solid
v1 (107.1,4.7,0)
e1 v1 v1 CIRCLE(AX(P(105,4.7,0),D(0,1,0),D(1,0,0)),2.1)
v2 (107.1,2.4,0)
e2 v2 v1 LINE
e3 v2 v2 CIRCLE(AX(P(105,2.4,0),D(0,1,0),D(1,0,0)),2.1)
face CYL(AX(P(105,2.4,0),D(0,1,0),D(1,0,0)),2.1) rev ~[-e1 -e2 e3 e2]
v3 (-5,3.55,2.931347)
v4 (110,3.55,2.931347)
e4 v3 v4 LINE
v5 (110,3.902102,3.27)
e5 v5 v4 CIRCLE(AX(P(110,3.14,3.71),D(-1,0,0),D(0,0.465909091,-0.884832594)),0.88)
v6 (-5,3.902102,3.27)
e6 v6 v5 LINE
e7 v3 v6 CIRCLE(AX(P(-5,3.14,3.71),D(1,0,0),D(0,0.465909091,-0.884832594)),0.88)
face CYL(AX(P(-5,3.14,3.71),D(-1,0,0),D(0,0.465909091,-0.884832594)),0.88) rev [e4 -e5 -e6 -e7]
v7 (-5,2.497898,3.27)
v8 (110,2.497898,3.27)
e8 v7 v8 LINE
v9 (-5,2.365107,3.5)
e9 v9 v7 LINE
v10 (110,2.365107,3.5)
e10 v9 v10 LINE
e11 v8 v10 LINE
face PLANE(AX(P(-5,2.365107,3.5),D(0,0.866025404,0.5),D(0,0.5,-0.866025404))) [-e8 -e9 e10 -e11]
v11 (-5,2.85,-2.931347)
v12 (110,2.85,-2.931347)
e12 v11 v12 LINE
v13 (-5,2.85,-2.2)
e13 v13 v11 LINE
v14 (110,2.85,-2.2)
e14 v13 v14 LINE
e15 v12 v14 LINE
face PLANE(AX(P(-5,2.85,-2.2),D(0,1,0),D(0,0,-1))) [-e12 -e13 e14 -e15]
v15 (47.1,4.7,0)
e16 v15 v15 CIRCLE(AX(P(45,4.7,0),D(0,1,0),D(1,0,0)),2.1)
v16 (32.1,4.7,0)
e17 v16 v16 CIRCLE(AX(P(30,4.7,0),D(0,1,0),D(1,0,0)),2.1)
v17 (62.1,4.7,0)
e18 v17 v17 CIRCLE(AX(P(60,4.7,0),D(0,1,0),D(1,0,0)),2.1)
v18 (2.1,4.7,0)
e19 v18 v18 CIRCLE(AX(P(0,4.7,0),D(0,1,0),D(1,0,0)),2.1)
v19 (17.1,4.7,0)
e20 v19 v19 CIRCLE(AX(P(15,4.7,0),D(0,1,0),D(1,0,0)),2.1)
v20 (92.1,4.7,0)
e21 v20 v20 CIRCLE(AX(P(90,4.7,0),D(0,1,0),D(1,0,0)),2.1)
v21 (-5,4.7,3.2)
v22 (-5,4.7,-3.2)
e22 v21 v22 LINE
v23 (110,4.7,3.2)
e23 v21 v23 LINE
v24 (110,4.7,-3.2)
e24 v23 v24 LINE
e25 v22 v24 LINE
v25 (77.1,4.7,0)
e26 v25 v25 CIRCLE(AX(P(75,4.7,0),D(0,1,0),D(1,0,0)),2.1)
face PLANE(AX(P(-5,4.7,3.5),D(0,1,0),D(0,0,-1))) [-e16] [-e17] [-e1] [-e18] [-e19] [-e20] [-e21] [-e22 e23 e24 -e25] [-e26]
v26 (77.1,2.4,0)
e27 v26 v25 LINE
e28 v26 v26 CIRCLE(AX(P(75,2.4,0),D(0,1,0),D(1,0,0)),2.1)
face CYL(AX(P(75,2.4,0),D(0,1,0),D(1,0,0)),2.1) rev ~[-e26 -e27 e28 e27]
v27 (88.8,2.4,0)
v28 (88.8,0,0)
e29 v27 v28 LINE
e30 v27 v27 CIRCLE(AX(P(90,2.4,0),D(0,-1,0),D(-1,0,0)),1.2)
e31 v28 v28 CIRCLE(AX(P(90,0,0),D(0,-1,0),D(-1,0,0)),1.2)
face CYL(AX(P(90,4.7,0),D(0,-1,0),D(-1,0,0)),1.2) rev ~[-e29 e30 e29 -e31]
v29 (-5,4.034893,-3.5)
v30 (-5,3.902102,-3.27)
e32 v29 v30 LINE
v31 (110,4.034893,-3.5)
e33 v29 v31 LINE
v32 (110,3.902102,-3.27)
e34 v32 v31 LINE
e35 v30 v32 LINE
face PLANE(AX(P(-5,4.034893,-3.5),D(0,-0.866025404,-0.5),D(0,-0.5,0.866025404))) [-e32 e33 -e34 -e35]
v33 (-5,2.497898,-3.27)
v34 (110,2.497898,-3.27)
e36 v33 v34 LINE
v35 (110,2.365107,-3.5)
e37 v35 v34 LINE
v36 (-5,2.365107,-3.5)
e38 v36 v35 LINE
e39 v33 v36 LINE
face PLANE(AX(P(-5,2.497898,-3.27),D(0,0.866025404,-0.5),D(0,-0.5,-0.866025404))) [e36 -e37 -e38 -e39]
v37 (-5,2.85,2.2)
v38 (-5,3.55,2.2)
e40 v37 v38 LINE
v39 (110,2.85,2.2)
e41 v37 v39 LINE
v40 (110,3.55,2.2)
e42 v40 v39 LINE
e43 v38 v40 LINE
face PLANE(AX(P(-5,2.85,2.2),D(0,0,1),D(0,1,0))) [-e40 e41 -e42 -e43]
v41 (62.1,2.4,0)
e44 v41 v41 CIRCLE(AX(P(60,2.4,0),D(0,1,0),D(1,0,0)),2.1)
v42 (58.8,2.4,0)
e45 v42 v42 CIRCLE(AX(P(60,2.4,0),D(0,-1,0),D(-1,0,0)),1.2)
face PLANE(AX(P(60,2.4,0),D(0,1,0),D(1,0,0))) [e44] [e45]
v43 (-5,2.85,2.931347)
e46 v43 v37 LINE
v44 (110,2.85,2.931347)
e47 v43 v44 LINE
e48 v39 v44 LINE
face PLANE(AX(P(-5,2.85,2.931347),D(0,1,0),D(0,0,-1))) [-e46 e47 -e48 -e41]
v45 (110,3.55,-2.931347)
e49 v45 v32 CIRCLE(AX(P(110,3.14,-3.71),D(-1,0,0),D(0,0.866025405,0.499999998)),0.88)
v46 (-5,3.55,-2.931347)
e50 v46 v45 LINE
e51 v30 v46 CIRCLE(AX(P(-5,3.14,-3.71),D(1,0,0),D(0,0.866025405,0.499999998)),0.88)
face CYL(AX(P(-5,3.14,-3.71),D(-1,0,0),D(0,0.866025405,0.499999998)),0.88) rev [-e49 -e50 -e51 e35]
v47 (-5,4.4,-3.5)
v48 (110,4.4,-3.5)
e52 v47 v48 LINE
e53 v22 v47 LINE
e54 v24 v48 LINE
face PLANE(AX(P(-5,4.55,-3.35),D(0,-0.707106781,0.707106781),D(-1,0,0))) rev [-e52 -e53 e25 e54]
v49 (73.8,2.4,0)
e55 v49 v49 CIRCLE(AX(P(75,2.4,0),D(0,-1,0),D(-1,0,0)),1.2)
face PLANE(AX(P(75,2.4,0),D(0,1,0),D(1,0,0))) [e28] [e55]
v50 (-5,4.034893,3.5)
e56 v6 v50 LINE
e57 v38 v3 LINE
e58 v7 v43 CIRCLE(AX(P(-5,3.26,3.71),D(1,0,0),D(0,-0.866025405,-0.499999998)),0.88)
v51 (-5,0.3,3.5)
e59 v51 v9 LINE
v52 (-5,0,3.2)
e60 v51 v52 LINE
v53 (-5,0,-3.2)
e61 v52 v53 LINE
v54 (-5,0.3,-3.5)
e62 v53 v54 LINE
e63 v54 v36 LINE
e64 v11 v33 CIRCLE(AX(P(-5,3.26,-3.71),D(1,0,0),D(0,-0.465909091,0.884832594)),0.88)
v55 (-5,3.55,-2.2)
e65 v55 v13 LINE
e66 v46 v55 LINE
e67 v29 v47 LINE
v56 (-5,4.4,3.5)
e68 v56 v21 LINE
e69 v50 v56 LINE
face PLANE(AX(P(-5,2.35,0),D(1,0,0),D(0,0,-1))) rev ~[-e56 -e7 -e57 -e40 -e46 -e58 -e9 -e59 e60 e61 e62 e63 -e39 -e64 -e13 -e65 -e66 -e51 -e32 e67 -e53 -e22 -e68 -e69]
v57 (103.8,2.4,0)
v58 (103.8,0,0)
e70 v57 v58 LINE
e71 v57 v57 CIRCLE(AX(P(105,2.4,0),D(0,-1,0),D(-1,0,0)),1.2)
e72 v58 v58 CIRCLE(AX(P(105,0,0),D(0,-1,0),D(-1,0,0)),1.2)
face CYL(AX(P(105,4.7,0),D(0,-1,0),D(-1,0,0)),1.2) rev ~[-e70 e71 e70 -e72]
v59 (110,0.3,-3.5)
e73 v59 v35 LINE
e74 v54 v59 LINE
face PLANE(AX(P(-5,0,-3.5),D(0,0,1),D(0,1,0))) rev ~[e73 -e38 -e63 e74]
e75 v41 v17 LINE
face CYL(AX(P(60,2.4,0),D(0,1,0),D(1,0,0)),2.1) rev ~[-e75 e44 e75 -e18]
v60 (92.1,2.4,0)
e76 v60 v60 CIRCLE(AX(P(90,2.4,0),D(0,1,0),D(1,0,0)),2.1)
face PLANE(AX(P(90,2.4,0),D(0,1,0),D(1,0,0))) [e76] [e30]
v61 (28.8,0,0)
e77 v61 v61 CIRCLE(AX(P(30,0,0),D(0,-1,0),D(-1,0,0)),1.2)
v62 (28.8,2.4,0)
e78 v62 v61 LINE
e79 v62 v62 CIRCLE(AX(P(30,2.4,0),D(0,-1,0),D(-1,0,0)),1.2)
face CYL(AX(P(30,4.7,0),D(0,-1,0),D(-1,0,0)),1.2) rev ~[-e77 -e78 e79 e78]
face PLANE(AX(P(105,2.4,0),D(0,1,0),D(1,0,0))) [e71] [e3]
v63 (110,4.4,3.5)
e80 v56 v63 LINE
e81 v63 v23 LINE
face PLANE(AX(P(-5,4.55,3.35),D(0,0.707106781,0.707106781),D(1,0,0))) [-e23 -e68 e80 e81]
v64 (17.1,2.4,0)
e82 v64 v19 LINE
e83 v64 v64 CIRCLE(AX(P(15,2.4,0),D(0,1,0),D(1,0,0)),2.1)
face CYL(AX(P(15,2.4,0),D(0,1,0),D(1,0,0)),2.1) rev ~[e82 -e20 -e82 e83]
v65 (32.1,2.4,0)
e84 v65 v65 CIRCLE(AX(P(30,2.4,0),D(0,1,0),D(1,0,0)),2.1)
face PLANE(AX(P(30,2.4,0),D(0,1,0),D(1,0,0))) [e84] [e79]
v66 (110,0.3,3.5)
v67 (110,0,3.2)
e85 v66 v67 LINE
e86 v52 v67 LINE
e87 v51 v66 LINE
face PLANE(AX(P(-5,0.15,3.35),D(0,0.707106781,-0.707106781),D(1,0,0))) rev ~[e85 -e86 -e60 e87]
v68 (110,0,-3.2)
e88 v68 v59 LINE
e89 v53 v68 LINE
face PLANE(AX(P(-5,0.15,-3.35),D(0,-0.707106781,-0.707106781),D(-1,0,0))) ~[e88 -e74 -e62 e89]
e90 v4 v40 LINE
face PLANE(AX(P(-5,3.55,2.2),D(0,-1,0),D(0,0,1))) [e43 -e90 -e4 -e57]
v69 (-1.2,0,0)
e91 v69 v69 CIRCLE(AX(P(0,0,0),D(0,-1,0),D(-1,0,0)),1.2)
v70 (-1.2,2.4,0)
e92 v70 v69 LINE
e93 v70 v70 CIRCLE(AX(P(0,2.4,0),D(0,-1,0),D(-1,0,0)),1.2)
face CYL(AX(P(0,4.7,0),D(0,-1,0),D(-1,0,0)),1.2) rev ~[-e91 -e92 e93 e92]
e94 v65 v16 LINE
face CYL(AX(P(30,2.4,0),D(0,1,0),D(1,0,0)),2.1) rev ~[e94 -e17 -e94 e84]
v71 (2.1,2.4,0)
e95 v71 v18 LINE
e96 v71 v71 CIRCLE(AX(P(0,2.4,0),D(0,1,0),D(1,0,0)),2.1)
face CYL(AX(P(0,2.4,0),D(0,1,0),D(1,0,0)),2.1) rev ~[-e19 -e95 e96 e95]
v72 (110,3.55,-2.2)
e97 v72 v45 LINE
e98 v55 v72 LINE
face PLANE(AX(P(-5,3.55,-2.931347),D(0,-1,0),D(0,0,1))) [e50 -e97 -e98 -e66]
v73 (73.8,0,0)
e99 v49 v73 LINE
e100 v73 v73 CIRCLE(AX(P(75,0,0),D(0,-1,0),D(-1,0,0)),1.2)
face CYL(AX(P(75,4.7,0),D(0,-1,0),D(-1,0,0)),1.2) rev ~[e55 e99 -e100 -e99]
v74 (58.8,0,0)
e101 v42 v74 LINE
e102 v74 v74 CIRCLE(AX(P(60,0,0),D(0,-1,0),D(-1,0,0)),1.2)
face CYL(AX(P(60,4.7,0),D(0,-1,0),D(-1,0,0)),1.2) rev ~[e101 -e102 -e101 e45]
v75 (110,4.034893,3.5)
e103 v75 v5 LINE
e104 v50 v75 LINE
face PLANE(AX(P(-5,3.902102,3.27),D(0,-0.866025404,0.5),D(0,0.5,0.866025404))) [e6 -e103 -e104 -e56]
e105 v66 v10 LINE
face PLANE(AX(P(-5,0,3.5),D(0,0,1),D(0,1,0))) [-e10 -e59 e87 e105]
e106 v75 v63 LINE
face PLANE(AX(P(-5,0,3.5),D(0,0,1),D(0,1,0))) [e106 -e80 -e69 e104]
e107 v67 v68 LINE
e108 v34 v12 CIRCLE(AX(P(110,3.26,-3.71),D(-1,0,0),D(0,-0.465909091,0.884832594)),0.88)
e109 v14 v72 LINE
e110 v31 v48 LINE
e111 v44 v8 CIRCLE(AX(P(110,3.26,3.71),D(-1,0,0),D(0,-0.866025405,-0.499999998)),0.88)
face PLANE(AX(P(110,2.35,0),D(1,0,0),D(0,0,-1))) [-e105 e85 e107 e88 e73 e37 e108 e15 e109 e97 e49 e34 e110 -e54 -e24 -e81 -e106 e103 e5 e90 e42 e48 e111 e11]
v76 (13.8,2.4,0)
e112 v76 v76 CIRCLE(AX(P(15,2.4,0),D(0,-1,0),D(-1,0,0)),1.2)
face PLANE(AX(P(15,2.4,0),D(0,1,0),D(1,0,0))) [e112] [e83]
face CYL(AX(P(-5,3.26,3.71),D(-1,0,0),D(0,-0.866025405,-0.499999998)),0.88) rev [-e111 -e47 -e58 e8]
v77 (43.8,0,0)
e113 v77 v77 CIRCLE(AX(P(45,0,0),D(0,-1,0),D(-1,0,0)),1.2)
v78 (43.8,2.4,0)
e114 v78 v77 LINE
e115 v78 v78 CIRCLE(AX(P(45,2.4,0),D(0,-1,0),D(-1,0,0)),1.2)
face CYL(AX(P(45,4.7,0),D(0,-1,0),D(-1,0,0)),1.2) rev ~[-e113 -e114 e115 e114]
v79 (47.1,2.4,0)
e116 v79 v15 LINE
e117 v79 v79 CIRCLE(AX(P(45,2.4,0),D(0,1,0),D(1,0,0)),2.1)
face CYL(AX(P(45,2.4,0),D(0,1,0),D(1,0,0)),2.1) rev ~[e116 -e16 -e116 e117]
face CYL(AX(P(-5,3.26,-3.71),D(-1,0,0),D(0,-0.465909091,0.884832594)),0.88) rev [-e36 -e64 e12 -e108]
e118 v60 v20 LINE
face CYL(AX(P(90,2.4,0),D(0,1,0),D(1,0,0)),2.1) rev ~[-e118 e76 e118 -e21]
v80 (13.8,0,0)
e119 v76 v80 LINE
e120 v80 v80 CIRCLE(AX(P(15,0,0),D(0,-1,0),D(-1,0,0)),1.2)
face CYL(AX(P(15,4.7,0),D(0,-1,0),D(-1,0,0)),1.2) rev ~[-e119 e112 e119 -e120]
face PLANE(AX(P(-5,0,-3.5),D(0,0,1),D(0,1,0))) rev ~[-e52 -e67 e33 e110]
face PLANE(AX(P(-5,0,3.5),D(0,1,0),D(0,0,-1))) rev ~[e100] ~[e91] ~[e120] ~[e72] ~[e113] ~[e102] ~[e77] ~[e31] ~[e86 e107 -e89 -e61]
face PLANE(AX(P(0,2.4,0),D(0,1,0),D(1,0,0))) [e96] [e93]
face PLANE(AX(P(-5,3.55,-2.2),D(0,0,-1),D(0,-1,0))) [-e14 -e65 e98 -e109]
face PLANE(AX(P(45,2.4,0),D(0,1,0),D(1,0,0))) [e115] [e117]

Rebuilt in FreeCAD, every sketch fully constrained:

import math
import FreeCAD as App
import Part
import Sketcher
from FreeCAD import Vector
Q = App.Units.Quantity


def edges_at(feature, points):
    """Names of the edges that pass closest to the given points."""
    edges = feature.Shape.Edges
    near = lambda p: min(range(len(edges)), key=lambda i: edges[i].distToShape(Part.Vertex(*p))[0])
    return sorted({f"Edge{near(p) + 1}" for p in points})

doc = App.newDocument("Part")
body = doc.addObject("PartDesign::Body", "Body")

sketch1 = body.newObject("Sketcher::SketchObject", "Sketch")
sketch1.AttachmentSupport = (doc.getObject("YZ_Plane"), [""])
sketch1.MapMode = "FlatFace"
sketch1.AttachmentOffset = App.Placement(Vector(0, 0, -5), App.Rotation())
sketch1.addGeometry([
    Part.LineSegment(Vector(4.7, 3.5, 0), Vector(0, 3.5, 0)),
    Part.LineSegment(Vector(0, 3.5, 0), Vector(0, -3.5, 0)),
    Part.LineSegment(Vector(0, -3.5, 0), Vector(4.7, -3.5, 0)),
    Part.LineSegment(Vector(4.7, -3.5, 0), Vector(4.7, 3.5, 0)),
], False)
sketch1.addConstraint([
    Sketcher.Constraint("Coincident", 0, 2, 1, 1),
    Sketcher.Constraint("Coincident", 1, 2, 2, 1),
    Sketcher.Constraint("Coincident", 2, 2, 3, 1),
    Sketcher.Constraint("Coincident", 3, 2, 0, 1),
    Sketcher.Constraint("Horizontal", 0),
    Sketcher.Constraint("Vertical", 1),
    Sketcher.Constraint("Horizontal", 2),
    Sketcher.Constraint("Vertical", 3),
    Sketcher.Constraint("Symmetric", 0, 2, 1, 2, -1, 1),
    Sketcher.Constraint("DistanceY", 1, 2, 1, 1, Q("7 mm")),
    Sketcher.Constraint("DistanceX", 0, 2, 0, 1, Q("4.7 mm")),
])
pad1 = body.newObject("PartDesign::Pad", "Pad")
pad1.Profile = sketch1
pad1.Length = 115

sketch2 = body.newObject("Sketcher::SketchObject", "Sketch001")
sketch2.AttachmentSupport = (doc.getObject("YZ_Plane"), [""])
sketch2.MapMode = "FlatFace"
sketch2.AttachmentOffset = App.Placement(Vector(0, 0, -5), App.Rotation())
sketch2.addGeometry([
    Part.LineSegment(Vector(4.034893, -3.5, 0), Vector(3.902102, -3.27, 0)),
    Part.ArcOfCircle(Part.Circle(Vector(3.14, -3.71, 0), Vector(0, 0, 1), 0.88), math.radians(30), math.radians(62.230927)),
    Part.LineSegment(Vector(3.55, -2.931347, 0), Vector(3.55, -2.2, 0)),
    Part.LineSegment(Vector(3.55, -2.2, 0), Vector(2.85, -2.2, 0)),
    Part.LineSegment(Vector(2.85, -2.2, 0), Vector(2.85, -2.931347, 0)),
    Part.ArcOfCircle(Part.Circle(Vector(3.26, -3.71, 0), Vector(0, 0, 1), 0.88), math.radians(117.769073), math.radians(150)),
    Part.LineSegment(Vector(2.497898, -3.27, 0), Vector(2.365107, -3.5, 0)),
    Part.LineSegment(Vector(2.365107, -3.5, 0), Vector(4.034893, -3.5, 0)),
    Part.LineSegment(Vector(4.034893, 3.5, 0), Vector(2.365107, 3.5, 0)),
    Part.LineSegment(Vector(2.365107, 3.5, 0), Vector(2.497898, 3.27, 0)),
    Part.ArcOfCircle(Part.Circle(Vector(3.26, 3.71, 0), Vector(0, 0, 1), 0.88), math.radians(-150), math.radians(-117.769073)),
    Part.LineSegment(Vector(2.85, 2.931347, 0), Vector(2.85, 2.2, 0)),
    Part.LineSegment(Vector(2.85, 2.2, 0), Vector(3.55, 2.2, 0)),
    Part.LineSegment(Vector(3.55, 2.2, 0), Vector(3.55, 2.931347, 0)),
    Part.ArcOfCircle(Part.Circle(Vector(3.14, 3.71, 0), Vector(0, 0, 1), 0.88), math.radians(-62.230927), math.radians(-30)),
    Part.LineSegment(Vector(3.902102, 3.27, 0), Vector(4.034893, 3.5, 0)),
], False)
sketch2.addConstraint([
    Sketcher.Constraint("Tangent", 0, 2, 1, 1),
    Sketcher.Constraint("Coincident", 1, 2, 2, 1),
    Sketcher.Constraint("Coincident", 2, 2, 3, 1),
    Sketcher.Constraint("Coincident", 3, 2, 4, 1),
    Sketcher.Constraint("Coincident", 4, 2, 5, 1),
    Sketcher.Constraint("Tangent", 5, 2, 6, 1),
    Sketcher.Constraint("Coincident", 6, 2, 7, 1),
    Sketcher.Constraint("Coincident", 7, 2, 0, 1),
    Sketcher.Constraint("Coincident", 8, 2, 9, 1),
    Sketcher.Constraint("Tangent", 9, 2, 10, 1),
    Sketcher.Constraint("Coincident", 10, 2, 11, 1),
    Sketcher.Constraint("Coincident", 11, 2, 12, 1),
    Sketcher.Constraint("Coincident", 12, 2, 13, 1),
    Sketcher.Constraint("Coincident", 13, 2, 14, 1),
    Sketcher.Constraint("Tangent", 14, 2, 15, 1),
    Sketcher.Constraint("Coincident", 15, 2, 8, 1),
    Sketcher.Constraint("Vertical", 2),
    Sketcher.Constraint("Horizontal", 3),
    Sketcher.Constraint("Vertical", 4),
    Sketcher.Constraint("Horizontal", 7),
    Sketcher.Constraint("Horizontal", 8),
    Sketcher.Constraint("Vertical", 11),
    Sketcher.Constraint("Horizontal", 12),
    Sketcher.Constraint("Vertical", 13),
    Sketcher.Constraint("Equal", 1, 5),
    Sketcher.Constraint("Equal", 5, 10),
    Sketcher.Constraint("Equal", 10, 14),
    Sketcher.Constraint("Symmetric", 5, 3, 10, 3, -1),
    Sketcher.Constraint("Symmetric", 1, 3, 14, 3, -1),
    Sketcher.Constraint("Symmetric", 6, 2, 8, 2, -1),
    Sketcher.Constraint("Symmetric", 3, 2, 11, 2, -1),
    Sketcher.Constraint("Parallel", 0, 9),
    Sketcher.Constraint("Parallel", 6, 15),
    Sketcher.Constraint("Horizontal", 1, 3, 5, 3),
    Sketcher.Constraint("Horizontal", 1, 2, 4, 2),
    Sketcher.Constraint("Horizontal", 10, 2, 13, 2),
    Sketcher.Constraint("Angle", 0, Q("120 deg")),
    Sketcher.Constraint("Radius", 1, Q("0.88 mm")),
    Sketcher.Constraint("DistanceX", 3, 2, 3, 1, Q("0.7 mm")),
    Sketcher.Constraint("DistanceY", 2, 2, -1, 1, Q("2.2 mm")),
    Sketcher.Constraint("DistanceY", 6, 2, -1, 1, Q("3.5 mm")),
    Sketcher.Constraint("DistanceX", -1, 1, 1, 3, Q("3.14 mm")),
    Sketcher.Constraint("DistanceY", 1, 3, -1, 1, Q("3.71 mm")),
    Sketcher.Constraint("DistanceX", -1, 1, 5, 3, Q("3.26 mm")),
])
pocket1 = body.newObject("PartDesign::Pocket", "Pocket")
pocket1.Profile = sketch2
pocket1.Type = "ThroughAll"
pocket1.Reversed = True

sketch3 = body.newObject("Sketcher::SketchObject", "Sketch002")
sketch3.AttachmentSupport = (doc.getObject("XZ_Plane"), [""])
sketch3.MapMode = "FlatFace"
sketch3.AttachmentOffset = App.Placement(Vector(0, 0, -4.7), App.Rotation())
sketch3.addGeometry(Part.Circle(Vector(0, 0, 0), Vector(0, 0, 1), 1.2), False)
sketch3.addConstraint([
    Sketcher.Constraint("Coincident", 0, 3, -1, 1),
    Sketcher.Constraint("Diameter", 0, Q("2.4 mm")),
])
doc.recompute()
hole = body.newObject("PartDesign::Hole", "Hole")
hole.Profile = sketch3
hole.ThreadType = "None"
hole.Diameter = 2.4
hole.DepthType = "ThroughAll"
hole.HoleCutType = "Counterbore"
hole.HoleCutDiameter = 4.2
hole.HoleCutDepth = 2.3
hole.Reversed = True
doc.recompute()

linearpattern = body.newObject("PartDesign::LinearPattern", "LinearPattern")
linearpattern.Originals = [hole]
linearpattern.Direction = (doc.getObject("X_Axis"), [""])
linearpattern.Mode = "offset"
linearpattern.Offset = 15
linearpattern.Occurrences = 8
body.Tip = linearpattern
doc.recompute()

chamfer = body.newObject("PartDesign::Chamfer", "Chamfer")
chamfer.Base = (linearpattern, edges_at(linearpattern, [(52.5, 4.7, 3.5), (52.5, 4.7, -3.5)]))
chamfer.Size = 0.3
doc.recompute()

chamfer2 = body.newObject("PartDesign::Chamfer", "Chamfer001")
chamfer2.Base = (chamfer, edges_at(chamfer, [(52.5, 0, -3.5), (52.5, 0, 3.5)]))
chamfer2.Size = 0.3

doc.recompute()
